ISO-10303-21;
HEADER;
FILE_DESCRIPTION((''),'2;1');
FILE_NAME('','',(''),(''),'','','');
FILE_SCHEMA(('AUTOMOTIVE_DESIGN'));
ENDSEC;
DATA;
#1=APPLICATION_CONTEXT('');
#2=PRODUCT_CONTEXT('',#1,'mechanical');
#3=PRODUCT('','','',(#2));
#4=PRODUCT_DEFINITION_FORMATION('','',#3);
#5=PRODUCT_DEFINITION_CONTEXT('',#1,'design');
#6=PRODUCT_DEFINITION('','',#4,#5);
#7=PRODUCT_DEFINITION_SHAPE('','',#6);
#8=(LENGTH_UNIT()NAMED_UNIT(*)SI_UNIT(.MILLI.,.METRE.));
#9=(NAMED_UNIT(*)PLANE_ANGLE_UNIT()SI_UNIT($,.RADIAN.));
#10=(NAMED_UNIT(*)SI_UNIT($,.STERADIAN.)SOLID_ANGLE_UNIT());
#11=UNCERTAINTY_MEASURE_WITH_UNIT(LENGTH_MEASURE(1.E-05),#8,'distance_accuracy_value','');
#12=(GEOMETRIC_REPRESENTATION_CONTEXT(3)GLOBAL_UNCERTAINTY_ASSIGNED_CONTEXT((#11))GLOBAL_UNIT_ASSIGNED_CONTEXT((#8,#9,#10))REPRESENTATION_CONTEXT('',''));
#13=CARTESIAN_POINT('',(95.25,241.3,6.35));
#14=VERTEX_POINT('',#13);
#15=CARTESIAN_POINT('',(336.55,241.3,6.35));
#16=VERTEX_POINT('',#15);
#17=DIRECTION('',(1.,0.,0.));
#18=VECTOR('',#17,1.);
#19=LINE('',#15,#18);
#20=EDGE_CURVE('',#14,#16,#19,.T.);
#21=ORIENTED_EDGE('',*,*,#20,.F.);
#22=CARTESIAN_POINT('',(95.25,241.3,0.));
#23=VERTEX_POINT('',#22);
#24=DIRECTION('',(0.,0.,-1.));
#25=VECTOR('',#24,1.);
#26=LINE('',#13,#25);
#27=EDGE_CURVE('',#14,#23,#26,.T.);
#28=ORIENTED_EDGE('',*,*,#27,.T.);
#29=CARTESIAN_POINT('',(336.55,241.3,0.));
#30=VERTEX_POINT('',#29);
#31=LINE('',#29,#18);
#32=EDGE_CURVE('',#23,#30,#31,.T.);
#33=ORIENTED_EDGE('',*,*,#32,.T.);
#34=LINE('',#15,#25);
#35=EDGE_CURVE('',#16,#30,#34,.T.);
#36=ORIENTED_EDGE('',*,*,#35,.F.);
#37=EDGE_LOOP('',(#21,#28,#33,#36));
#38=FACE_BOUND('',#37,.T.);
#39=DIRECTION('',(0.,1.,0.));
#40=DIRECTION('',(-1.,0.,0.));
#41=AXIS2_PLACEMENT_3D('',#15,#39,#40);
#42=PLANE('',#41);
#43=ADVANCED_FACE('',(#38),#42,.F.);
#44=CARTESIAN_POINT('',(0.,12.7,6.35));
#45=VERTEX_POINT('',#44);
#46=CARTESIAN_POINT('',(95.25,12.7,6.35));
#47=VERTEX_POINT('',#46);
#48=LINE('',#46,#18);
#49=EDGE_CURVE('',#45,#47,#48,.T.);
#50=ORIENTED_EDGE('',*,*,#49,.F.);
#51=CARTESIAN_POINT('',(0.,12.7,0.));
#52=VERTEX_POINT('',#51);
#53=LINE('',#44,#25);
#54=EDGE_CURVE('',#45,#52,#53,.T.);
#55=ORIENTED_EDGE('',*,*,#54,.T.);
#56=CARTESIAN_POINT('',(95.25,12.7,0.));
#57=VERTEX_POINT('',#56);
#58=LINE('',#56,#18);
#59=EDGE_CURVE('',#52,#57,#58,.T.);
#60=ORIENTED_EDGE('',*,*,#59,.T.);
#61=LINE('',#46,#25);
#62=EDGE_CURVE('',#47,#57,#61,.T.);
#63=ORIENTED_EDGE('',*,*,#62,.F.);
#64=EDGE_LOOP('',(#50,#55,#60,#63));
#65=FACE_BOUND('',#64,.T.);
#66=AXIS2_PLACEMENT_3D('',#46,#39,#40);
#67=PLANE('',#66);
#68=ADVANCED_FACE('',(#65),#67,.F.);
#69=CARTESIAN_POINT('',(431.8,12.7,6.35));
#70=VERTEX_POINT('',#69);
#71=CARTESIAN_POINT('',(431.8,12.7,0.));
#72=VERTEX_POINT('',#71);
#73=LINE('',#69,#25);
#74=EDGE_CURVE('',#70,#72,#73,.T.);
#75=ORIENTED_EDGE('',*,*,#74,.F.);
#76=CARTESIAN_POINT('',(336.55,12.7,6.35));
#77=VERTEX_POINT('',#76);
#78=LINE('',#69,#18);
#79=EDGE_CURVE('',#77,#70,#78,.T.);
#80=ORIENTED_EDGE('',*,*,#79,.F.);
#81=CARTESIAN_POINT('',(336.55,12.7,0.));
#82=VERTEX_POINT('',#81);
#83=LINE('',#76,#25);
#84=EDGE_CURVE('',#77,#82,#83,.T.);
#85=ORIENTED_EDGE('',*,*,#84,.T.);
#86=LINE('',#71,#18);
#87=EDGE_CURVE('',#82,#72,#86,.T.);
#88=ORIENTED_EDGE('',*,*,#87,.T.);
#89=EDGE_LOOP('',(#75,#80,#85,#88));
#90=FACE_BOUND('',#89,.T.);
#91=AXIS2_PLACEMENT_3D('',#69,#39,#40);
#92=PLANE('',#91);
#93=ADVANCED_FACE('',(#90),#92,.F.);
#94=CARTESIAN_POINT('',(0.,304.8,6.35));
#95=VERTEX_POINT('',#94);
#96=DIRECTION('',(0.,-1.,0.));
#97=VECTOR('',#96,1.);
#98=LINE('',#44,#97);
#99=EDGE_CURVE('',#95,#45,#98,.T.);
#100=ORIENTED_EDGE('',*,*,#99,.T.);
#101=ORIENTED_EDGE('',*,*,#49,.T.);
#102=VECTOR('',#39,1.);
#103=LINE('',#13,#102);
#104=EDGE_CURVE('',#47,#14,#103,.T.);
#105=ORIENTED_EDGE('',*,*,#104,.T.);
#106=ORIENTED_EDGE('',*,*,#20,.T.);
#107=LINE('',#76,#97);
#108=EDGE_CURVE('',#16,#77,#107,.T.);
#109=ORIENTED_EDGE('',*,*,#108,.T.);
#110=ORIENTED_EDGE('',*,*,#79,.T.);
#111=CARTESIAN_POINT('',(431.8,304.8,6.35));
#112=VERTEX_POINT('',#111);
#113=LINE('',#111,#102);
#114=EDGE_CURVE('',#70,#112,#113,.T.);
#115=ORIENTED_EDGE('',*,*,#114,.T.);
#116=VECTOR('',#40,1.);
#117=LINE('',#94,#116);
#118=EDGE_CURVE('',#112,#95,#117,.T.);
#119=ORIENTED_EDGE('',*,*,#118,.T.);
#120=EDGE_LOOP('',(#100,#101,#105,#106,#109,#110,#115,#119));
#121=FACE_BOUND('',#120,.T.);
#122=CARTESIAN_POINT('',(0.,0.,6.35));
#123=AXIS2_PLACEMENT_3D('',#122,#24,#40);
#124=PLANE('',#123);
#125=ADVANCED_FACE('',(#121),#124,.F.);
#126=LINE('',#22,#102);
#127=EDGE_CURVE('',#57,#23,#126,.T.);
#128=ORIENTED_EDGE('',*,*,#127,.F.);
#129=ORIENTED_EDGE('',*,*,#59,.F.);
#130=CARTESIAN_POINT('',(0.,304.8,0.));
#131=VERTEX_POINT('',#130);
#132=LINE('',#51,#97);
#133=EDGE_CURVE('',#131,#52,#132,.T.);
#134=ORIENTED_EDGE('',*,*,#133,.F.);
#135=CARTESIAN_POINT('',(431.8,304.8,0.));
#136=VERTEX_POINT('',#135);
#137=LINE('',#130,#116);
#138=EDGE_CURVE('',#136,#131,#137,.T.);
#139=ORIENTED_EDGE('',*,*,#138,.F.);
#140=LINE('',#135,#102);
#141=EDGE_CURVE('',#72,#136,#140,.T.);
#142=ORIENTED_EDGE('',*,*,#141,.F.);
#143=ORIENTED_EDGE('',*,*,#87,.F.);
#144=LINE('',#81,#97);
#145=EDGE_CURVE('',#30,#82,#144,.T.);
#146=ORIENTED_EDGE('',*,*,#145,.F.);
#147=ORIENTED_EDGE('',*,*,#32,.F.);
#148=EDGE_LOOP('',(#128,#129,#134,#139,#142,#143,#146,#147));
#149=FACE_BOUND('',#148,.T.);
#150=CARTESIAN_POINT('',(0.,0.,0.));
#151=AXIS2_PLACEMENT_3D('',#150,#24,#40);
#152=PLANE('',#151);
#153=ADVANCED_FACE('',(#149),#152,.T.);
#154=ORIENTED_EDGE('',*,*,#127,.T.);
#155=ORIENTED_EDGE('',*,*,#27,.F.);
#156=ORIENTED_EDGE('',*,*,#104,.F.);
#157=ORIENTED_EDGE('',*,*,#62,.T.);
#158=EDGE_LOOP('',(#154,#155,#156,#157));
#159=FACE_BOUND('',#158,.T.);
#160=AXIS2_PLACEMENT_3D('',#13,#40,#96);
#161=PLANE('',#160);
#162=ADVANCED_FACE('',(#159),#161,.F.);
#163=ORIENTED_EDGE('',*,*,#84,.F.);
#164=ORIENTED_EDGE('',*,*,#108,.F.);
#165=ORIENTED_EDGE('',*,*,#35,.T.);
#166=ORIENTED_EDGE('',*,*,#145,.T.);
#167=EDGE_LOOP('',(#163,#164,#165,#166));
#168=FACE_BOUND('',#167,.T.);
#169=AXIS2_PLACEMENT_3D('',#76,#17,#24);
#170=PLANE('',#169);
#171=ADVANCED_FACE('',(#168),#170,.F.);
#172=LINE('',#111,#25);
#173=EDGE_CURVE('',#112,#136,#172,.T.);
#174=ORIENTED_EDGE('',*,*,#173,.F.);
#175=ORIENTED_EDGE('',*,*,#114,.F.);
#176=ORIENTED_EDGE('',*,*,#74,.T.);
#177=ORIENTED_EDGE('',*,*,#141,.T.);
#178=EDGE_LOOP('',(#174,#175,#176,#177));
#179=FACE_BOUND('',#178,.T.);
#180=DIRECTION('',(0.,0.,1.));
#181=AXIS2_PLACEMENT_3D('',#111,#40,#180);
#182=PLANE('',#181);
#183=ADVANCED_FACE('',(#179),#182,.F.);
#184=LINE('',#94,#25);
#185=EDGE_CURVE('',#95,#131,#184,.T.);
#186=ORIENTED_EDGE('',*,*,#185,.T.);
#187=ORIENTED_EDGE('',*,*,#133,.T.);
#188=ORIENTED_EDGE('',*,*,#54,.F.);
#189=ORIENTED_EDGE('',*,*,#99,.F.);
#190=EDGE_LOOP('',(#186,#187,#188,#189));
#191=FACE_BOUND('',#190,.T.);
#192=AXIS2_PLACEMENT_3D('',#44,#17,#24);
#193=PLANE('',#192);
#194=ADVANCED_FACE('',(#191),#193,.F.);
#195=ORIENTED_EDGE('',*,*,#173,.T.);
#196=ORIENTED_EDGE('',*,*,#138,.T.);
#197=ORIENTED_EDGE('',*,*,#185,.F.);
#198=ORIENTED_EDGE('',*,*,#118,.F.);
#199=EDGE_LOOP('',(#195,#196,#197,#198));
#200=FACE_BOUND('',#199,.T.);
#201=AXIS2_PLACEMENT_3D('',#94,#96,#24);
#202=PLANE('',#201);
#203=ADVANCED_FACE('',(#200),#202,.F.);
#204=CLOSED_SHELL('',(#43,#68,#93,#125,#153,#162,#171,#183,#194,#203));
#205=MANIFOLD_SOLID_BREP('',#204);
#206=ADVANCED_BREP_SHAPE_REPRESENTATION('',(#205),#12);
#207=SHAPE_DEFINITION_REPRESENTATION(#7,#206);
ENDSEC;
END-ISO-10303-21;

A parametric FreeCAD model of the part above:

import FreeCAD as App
import Part
import Sketcher
from FreeCAD import Vector
Q = App.Units.Quantity


def add_polygon(sketch, points):
    """Adds a closed chain of lines whose ends are joined by coincident constraints."""
    first, n = sketch.GeometryCount, len(points)
    for a, b in zip(points, points[1:] + points[:1]):
        sketch.addGeometry(Part.LineSegment(App.Vector(*a, 0), App.Vector(*b, 0)), False)
    for i in range(n):
        sketch.addConstraint(Sketcher.Constraint("Coincident", first + i, 2, first + (i + 1) % n, 1))

doc = App.newDocument("Part")
body = doc.addObject("PartDesign::Body", "Body")

sketch1 = body.newObject("Sketcher::SketchObject", "Sketch")
sketch1.AttachmentSupport = (doc.getObject("XY_Plane"), [""])
sketch1.MapMode = "FlatFace"
add_polygon(sketch1, [(0, 304.8), (0, 12.7), (95.25, 12.7), (95.25, 241.3), (336.55, 241.3), (336.55, 12.7), (431.8, 12.7), (431.8, 304.8)])
sketch1.addConstraint([
    Sketcher.Constraint("Vertical", 0),
    Sketcher.Constraint("Horizontal", 1),
    Sketcher.Constraint("Vertical", 2),
    Sketcher.Constraint("Horizontal", 3),
    Sketcher.Constraint("Vertical", 4),
    Sketcher.Constraint("Horizontal", 5),
    Sketcher.Constraint("Vertical", 6),
    Sketcher.Constraint("Horizontal", 7),
    Sketcher.Constraint("PointOnObject", 0, 2, -2),
    Sketcher.Constraint("Horizontal", 1, 2, 4, 2),
    Sketcher.Constraint("Equal", 1, 5),
    Sketcher.Constraint("DistanceX", 7, 2, 7, 1, Q("17 in")),
    Sketcher.Constraint("DistanceY", 2, 1, 2, 2, Q("9 in")),
    Sketcher.Constraint("DistanceX", 3, 1, 3, 2, Q("9.5 in")),
    Sketcher.Constraint("DistanceY", 0, 2, 0, 1, Q("11.5 in")),
    Sketcher.Constraint("DistanceY", -1, 1, 6, 2, Q("12 in")),
])
pad1 = body.newObject("PartDesign::Pad", "Pad")
pad1.Profile = sketch1
pad1.Length = Q("0.25 in")

doc.recompute()
